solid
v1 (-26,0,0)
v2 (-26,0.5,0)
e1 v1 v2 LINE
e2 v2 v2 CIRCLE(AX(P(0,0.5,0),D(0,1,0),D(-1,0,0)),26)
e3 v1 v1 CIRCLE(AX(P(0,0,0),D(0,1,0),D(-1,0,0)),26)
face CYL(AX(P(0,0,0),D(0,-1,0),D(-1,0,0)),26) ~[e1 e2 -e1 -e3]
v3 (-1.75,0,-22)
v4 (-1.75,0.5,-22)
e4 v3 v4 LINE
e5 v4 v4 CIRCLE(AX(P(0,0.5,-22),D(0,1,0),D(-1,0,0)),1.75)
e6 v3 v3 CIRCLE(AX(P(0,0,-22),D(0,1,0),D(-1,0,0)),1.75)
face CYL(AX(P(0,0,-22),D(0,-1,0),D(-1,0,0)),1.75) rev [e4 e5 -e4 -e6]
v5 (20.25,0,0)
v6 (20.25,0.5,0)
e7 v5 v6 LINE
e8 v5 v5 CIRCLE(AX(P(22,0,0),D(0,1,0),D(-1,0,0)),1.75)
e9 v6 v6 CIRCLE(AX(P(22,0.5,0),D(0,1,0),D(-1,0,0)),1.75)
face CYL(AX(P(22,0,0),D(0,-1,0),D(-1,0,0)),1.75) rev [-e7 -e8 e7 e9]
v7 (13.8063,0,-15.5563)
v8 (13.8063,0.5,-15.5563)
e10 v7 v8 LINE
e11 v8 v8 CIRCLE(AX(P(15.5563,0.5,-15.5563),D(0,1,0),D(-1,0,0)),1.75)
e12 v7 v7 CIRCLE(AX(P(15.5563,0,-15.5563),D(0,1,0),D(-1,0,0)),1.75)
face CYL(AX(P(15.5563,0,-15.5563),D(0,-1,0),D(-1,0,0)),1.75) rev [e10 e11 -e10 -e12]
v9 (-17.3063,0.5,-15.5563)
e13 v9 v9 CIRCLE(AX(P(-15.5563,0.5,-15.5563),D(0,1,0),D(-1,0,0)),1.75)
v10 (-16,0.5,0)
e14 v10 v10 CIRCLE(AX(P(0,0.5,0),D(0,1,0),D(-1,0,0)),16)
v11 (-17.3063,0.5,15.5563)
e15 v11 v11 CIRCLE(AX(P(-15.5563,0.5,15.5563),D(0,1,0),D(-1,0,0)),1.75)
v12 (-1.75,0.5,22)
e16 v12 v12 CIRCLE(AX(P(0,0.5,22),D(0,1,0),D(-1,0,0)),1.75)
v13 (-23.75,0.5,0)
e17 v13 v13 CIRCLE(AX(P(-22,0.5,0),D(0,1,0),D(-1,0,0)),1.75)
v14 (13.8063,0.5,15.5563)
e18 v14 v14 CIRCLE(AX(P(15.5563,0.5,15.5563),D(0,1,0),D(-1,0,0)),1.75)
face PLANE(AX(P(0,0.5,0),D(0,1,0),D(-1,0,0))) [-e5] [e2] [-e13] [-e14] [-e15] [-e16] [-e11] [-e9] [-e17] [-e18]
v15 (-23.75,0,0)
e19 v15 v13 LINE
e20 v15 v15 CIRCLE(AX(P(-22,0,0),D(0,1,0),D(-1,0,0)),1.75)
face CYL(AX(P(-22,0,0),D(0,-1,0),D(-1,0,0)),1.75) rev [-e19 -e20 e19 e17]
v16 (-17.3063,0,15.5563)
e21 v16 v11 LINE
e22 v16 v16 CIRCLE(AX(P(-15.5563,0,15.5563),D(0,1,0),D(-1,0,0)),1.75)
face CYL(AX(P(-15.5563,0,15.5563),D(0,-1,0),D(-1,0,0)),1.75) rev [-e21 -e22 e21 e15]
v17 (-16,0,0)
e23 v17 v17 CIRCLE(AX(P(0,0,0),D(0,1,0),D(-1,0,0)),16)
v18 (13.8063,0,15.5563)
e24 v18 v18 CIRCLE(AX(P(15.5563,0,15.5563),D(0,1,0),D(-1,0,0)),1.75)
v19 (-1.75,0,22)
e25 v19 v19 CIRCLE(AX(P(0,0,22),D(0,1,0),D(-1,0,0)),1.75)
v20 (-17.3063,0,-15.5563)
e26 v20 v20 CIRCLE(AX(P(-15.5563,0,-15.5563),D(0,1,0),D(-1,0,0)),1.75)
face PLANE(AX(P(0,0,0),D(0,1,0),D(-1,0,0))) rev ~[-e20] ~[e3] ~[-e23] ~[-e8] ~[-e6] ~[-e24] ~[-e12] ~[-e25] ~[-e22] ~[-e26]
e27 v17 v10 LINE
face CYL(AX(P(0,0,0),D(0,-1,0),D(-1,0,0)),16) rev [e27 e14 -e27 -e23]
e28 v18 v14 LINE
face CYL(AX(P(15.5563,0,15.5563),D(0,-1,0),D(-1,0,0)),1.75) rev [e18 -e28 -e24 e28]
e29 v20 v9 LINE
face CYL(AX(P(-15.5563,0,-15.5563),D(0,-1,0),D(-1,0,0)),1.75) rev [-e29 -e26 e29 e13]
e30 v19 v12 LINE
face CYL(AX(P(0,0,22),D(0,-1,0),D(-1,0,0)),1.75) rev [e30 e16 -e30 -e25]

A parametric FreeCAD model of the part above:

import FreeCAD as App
import Part
import Sketcher
Q = App.Units.Quantity

doc = App.newDocument("Part")
params = doc.addObject("Spreadsheet::Sheet", "Params")
for row, (alias, value) in enumerate([
    ("sketch1_diameter", "52 mm"),
    ("sketch1_diameter2", "32 mm"),
    ("sketch1_diameter3", "3.5 mm"),
    ("pad1_length", "0.5 mm"),
], start=1):
    params.set(f"A{row}", alias)
    params.set(f"B{row}", "=" + value)
    params.setAlias(f"B{row}", alias)

body = doc.addObject("PartDesign::Body", "Body")

sketch1 = body.newObject("Sketcher::SketchObject", "Sketch")
sketch1.AttachmentSupport = (doc.getObject("XZ_Plane"), [""])
sketch1.MapMode = "FlatFace"
sketch1.addGeometry(Part.Circle(App.Vector(0, 0, 0), App.Vector(0, 0, 1), 26), False)
sketch1.addGeometry(Part.Circle(App.Vector(15.5563, -15.5563, 0), App.Vector(0, 0, 1), 1.75), False)
sketch1.addGeometry(Part.Circle(App.Vector(0, -22, 0), App.Vector(0, 0, 1), 1.75), False)
sketch1.addGeometry(Part.Circle(App.Vector(-15.5563, -15.5563, 0), App.Vector(0, 0, 1), 1.75), False)
sketch1.addGeometry(Part.Circle(App.Vector(22, 0, 0), App.Vector(0, 0, 1), 1.75), False)
sketch1.addGeometry(Part.Circle(App.Vector(15.5563, 15.5563, 0), App.Vector(0, 0, 1), 1.75), False)
sketch1.addGeometry(Part.Circle(App.Vector(0, 0, 0), App.Vector(0, 0, 1), 16), False)
sketch1.addGeometry(Part.Circle(App.Vector(-22, 0, 0), App.Vector(0, 0, 1), 1.75), False)
sketch1.addGeometry(Part.Circle(App.Vector(0, 22, 0), App.Vector(0, 0, 1), 1.75), False)
sketch1.addGeometry(Part.Circle(App.Vector(-15.5563, 15.5563, 0), App.Vector(0, 0, 1), 1.75), False)
sketch1.addConstraint(Sketcher.Constraint("Coincident", 0, 3, -1, 1))
sketch1.addConstraint(Sketcher.Constraint("Coincident", 6, 3, -1, 1))
sketch1.addConstraint(Sketcher.Constraint("Equal", 1, 2))
sketch1.addConstraint(Sketcher.Constraint("Equal", 2, 3))
sketch1.addConstraint(Sketcher.Constraint("Equal", 3, 4))
sketch1.addConstraint(Sketcher.Constraint("Equal", 4, 5))
sketch1.addConstraint(Sketcher.Constraint("Equal", 5, 7))
sketch1.addConstraint(Sketcher.Constraint("Equal", 7, 8))
sketch1.addConstraint(Sketcher.Constraint("Equal", 8, 9))
sketch1.addConstraint(Sketcher.Constraint("Symmetric", 3, 3, 5, 3, -1, 1))
sketch1.addConstraint(Sketcher.Constraint("Symmetric", 4, 3, 7, 3, -1, 1))
sketch1.addConstraint(Sketcher.Constraint("Symmetric", 2, 3, 8, 3, -1, 1))
sketch1.addConstraint(Sketcher.Constraint("Symmetric", 1, 3, 9, 3, -1, 1))
sketch1.addConstraint(Sketcher.Constraint("Symmetric", 1, 3, 3, 3, -2))
sketch1.addConstraint(Sketcher.Constraint("PointOnObject", 2, 3, -2))
sketch1.addConstraint(Sketcher.Constraint("PointOnObject", 4, 3, -1))
sketch1.addConstraint(Sketcher.Constraint("Diameter", 0, Q("52 mm")))
sketch1.addConstraint(Sketcher.Constraint("Diameter", 6, Q("32 mm")))
sketch1.addConstraint(Sketcher.Constraint("Diameter", 1, Q("3.5 mm")))
sketch1.addConstraint(Sketcher.Constraint("DistanceY", 2, 3, -1, 1, Q("22 mm")))
sketch1.addConstraint(Sketcher.Constraint("DistanceX", -1, 1, 4, 3, Q("22 mm")))
sketch1.addConstraint(Sketcher.Constraint("DistanceX", -1, 1, 1, 3, Q("15.5563 mm")))
sketch1.addConstraint(Sketcher.Constraint("DistanceY", 1, 3, -1, 1, Q("15.5563 mm")))
sketch1.setExpression("Constraints[16]", "Params.sketch1_diameter")
sketch1.setExpression("Constraints[17]", "Params.sketch1_diameter2")
sketch1.setExpression("Constraints[18]", "Params.sketch1_diameter3")
pad1 = body.newObject("PartDesign::Pad", "Pad")
pad1.Profile = sketch1
pad1.setExpression("Length", "Params.pad1_length")
pad1.Reversed = True

doc.recompute()
